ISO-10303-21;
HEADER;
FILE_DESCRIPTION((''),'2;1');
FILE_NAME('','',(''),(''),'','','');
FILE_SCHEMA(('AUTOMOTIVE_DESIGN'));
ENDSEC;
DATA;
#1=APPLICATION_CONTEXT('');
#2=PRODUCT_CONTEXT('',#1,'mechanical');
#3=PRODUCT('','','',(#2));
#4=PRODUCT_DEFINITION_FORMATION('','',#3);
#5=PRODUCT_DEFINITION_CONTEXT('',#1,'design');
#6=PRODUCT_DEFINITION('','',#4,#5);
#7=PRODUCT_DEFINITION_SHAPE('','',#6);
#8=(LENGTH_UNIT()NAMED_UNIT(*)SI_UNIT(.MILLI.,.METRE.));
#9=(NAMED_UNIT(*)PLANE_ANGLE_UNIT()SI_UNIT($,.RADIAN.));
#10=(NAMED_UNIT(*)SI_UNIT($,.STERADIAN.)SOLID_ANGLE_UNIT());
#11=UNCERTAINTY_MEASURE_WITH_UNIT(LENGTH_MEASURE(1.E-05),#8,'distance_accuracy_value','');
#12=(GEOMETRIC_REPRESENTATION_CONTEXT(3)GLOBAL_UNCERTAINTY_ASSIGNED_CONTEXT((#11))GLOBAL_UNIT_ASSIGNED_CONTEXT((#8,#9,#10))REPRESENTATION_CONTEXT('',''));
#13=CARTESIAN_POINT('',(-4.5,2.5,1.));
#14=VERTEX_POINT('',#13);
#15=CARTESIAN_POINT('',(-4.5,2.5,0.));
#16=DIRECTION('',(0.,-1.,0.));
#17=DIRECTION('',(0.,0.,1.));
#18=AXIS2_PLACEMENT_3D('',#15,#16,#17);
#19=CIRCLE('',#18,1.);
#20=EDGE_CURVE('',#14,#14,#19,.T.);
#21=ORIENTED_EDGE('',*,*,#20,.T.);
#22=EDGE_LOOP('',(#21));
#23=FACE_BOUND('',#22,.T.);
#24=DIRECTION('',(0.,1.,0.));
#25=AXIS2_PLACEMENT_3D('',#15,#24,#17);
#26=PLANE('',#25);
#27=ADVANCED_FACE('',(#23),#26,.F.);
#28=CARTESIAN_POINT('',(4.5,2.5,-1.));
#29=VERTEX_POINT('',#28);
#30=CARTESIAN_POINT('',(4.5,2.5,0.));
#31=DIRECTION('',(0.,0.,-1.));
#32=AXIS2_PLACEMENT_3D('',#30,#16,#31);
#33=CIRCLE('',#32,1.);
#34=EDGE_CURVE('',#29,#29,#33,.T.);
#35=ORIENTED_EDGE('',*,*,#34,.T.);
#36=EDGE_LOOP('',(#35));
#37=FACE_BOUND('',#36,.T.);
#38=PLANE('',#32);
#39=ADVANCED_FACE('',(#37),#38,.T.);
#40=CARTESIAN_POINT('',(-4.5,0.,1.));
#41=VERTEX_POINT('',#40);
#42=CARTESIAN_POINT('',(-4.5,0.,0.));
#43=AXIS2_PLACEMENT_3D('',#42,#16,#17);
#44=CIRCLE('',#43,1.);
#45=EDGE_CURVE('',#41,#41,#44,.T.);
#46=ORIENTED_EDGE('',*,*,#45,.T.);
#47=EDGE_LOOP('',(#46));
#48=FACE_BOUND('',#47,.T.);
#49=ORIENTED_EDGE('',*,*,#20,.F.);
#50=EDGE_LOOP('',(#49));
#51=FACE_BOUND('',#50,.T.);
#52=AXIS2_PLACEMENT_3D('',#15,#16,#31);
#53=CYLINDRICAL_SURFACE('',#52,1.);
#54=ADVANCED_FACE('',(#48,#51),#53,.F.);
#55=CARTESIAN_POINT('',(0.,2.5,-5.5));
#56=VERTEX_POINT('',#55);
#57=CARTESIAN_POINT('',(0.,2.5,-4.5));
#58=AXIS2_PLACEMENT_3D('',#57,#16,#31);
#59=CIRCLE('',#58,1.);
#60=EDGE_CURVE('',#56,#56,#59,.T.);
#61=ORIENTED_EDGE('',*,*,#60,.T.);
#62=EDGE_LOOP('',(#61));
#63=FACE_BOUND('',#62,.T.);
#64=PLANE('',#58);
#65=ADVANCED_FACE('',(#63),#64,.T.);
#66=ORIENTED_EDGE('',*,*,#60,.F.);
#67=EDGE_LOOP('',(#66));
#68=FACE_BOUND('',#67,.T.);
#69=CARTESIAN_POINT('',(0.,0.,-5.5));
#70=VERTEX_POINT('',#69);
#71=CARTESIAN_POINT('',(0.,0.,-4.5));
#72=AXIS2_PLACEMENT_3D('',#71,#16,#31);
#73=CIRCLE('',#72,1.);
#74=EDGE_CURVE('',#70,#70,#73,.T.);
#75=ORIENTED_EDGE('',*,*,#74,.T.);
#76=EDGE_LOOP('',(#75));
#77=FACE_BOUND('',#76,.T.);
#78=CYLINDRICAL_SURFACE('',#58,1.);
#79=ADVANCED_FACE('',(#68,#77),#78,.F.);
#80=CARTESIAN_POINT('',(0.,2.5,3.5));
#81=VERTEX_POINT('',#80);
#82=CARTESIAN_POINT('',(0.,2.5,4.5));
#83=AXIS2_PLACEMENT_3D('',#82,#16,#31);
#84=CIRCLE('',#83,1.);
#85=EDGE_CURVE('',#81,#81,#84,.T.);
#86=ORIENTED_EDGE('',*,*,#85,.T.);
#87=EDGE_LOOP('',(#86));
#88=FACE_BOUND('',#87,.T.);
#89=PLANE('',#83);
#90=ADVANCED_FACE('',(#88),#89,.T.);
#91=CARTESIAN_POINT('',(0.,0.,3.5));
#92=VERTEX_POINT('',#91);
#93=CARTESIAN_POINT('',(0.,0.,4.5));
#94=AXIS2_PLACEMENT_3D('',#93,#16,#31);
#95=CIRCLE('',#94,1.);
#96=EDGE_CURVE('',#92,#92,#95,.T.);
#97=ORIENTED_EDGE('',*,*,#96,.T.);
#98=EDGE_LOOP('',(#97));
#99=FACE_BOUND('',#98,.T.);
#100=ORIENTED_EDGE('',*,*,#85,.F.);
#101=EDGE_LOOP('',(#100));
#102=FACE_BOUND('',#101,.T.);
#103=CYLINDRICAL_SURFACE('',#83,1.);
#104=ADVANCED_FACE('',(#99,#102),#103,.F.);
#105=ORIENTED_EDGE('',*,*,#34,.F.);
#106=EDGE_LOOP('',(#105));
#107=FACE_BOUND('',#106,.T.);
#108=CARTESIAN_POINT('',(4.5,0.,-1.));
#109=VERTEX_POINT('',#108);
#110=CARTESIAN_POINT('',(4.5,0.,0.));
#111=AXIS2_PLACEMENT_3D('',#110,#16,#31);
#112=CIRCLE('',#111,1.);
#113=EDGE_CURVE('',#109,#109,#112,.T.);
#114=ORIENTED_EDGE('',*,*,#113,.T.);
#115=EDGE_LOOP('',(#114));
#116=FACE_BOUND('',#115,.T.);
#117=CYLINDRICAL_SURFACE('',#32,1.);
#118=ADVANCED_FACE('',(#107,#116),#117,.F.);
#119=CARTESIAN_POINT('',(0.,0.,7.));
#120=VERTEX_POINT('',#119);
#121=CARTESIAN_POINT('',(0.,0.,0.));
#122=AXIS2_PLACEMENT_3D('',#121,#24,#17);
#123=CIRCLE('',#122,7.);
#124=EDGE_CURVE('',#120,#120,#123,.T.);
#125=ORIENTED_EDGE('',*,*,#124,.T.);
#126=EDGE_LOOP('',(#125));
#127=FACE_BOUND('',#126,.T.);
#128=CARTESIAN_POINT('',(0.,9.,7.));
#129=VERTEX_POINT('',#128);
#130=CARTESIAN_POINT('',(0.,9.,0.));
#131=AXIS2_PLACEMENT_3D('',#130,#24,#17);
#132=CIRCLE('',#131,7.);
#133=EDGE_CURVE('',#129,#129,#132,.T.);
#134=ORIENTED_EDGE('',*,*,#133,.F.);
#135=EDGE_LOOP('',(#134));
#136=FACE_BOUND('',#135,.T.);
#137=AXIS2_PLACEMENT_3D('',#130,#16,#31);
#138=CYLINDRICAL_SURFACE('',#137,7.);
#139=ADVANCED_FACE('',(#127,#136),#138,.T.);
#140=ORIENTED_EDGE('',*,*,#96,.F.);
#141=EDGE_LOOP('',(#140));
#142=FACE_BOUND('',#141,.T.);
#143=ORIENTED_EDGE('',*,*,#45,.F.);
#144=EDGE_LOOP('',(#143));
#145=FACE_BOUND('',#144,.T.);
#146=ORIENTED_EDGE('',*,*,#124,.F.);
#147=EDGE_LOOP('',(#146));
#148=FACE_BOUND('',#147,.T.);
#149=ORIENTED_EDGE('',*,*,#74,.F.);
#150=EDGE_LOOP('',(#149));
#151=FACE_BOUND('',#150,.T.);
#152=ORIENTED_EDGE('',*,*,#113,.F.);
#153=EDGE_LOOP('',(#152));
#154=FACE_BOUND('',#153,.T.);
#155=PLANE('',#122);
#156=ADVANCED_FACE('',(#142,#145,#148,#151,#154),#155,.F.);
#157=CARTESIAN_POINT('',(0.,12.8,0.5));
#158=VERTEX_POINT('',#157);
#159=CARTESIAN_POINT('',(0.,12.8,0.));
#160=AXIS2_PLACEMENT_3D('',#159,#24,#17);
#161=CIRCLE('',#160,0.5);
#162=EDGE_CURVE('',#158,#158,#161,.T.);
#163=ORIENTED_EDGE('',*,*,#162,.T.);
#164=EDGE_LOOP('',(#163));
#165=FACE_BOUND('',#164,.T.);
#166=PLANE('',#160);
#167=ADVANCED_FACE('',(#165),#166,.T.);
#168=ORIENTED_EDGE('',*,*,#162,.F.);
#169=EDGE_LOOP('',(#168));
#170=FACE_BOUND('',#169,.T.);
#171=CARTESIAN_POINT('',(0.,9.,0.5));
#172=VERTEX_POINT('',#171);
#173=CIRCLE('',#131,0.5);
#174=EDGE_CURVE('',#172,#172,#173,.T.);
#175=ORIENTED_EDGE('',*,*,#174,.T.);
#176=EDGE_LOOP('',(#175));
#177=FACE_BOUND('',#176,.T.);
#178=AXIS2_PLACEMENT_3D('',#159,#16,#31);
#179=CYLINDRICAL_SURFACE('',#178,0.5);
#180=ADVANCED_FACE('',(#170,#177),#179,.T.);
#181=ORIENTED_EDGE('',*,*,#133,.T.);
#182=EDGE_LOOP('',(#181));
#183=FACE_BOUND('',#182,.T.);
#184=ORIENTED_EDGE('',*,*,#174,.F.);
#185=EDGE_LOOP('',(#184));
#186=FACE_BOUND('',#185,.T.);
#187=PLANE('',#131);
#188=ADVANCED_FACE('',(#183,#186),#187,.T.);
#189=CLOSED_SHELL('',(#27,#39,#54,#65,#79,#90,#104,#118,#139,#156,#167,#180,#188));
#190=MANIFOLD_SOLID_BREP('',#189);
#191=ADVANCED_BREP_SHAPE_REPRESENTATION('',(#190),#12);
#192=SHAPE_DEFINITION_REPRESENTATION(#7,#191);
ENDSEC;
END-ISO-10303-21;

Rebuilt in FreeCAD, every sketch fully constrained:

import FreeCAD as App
import Part
import Sketcher

V = App.Vector
Q = App.Units.Quantity

doc = App.newDocument("Part")
body = doc.addObject("PartDesign::Body", "Body")

sketch1 = body.newObject("Sketcher::SketchObject", "Sketch")
sketch1.AttachmentSupport = (doc.getObject("XZ_Plane"), [""])
sketch1.MapMode = "FlatFace"
sketch1.addGeometry(Part.Circle(V(0, 0, 0), V(0, 0, 1), 7), False)
sketch1.addConstraint([
    Sketcher.Constraint("Coincident", 0, 3, -1, 1),
    Sketcher.Constraint("Diameter", 0, Q("14 mm")),
])
pad1 = body.newObject("PartDesign::Pad", "Pad")
pad1.Profile = sketch1
pad1.Length = 9
pad1.Reversed = True

sketch2 = body.newObject("Sketcher::SketchObject", "Sketch001")
sketch2.AttachmentSupport = (doc.getObject("XZ_Plane"), [""])
sketch2.MapMode = "FlatFace"
sketch2.addGeometry([
    Part.Circle(V(0, 4.5, 0), V(0, 0, 1), 1),
    Part.Circle(V(0, -4.5, 0), V(0, 0, 1), 1),
    Part.Circle(V(4.5, 0, 0), V(0, 0, 1), 1),
    Part.Circle(V(-4.5, 0, 0), V(0, 0, 1), 1),
], False)
sketch2.addConstraint([
    Sketcher.Constraint("Equal", 0, 1),
    Sketcher.Constraint("Equal", 1, 2),
    Sketcher.Constraint("Equal", 2, 3),
    Sketcher.Constraint("Symmetric", 0, 3, 1, 3, -1, 1),
    Sketcher.Constraint("Symmetric", 2, 3, 3, 3, -1, 1),
    Sketcher.Constraint("PointOnObject", 0, 3, -2),
    Sketcher.Constraint("PointOnObject", 2, 3, -1),
    Sketcher.Constraint("Diameter", 0, Q("2 mm")),
    Sketcher.Constraint("DistanceY", 1, 3, 0, 3, Q("9 mm")),
    Sketcher.Constraint("DistanceX", 3, 3, 2, 3, Q("9 mm")),
])
pocket1 = body.newObject("PartDesign::Pocket", "Pocket")
pocket1.Profile = sketch2
pocket1.Length = 2.5

sketch3 = body.newObject("Sketcher::SketchObject", "Sketch002")
sketch3.AttachmentSupport = (doc.getObject("XZ_Plane"), [""])
sketch3.MapMode = "FlatFace"
sketch3.AttachmentOffset = App.Placement(V(0, 0, -9), App.Rotation())
sketch3.addGeometry(Part.Circle(V(0, 0, 0), V(0, 0, 1), 0.5), False)
sketch3.addConstraint([
    Sketcher.Constraint("Coincident", 0, 3, -1, 1),
    Sketcher.Constraint("Diameter", 0, Q("1 mm")),
])
pad2 = body.newObject("PartDesign::Pad", "Pad001")
pad2.Profile = sketch3
pad2.Length = 3.8
pad2.Reversed = True

doc.recompute()
